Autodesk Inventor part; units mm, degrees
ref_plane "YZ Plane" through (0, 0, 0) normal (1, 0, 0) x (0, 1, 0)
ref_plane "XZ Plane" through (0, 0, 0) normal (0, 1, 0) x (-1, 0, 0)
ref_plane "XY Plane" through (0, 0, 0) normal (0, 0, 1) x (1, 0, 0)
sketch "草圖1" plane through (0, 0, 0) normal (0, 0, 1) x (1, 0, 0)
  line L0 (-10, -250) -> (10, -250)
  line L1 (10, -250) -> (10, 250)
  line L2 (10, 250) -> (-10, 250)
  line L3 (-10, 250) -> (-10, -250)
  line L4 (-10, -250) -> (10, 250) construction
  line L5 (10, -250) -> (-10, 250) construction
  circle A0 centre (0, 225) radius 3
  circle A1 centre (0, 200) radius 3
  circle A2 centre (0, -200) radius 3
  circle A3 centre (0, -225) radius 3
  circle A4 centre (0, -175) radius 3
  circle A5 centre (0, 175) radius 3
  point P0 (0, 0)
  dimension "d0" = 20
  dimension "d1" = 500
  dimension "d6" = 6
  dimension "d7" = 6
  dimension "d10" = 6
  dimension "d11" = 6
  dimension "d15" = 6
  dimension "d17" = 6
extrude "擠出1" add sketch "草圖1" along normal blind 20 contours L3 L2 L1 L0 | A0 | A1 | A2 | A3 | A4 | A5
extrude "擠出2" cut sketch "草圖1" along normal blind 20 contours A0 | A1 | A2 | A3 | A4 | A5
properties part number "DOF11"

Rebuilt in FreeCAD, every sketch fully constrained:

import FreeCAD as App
import Part
import Sketcher
from FreeCAD import Vector

doc = App.newDocument("Part")
body = doc.addObject("PartDesign::Body", "Body")

# Sketch on XY plane
sketch1 = body.newObject("Sketcher::SketchObject", "Sketch")
sketch1.AttachmentSupport = (doc.getObject("XY_Plane"), [""])
sketch1.MapMode = "FlatFace"
sketch1.addGeometry([
    Part.LineSegment(Vector(-10, 250, 0), Vector(-10, -250, 0)),
    Part.LineSegment(Vector(-10, -250, 0), Vector(10, -250, 0)),
    Part.LineSegment(Vector(10, -250, 0), Vector(10, 250, 0)),
    Part.LineSegment(Vector(10, 250, 0), Vector(-10, 250, 0)),
], False)
sketch1.addConstraint([
    Sketcher.Constraint("Coincident", 0, 2, 1, 1),
    Sketcher.Constraint("Coincident", 1, 2, 2, 1),
    Sketcher.Constraint("Coincident", 2, 2, 3, 1),
    Sketcher.Constraint("Coincident", 3, 2, 0, 1),
    Sketcher.Constraint("Vertical", 0),
    Sketcher.Constraint("Horizontal", 1),
    Sketcher.Constraint("Vertical", 2),
    Sketcher.Constraint("Horizontal", 3),
    Sketcher.Constraint("Symmetric", 0, 2, 2, 2, -1, 1),
    Sketcher.Constraint("DistanceX", 1, 1, 1, 2, 20.0),
    Sketcher.Constraint("DistanceY", 0, 2, 0, 1, 500.0),
])
pad1 = body.newObject("PartDesign::Pad", "Pad")
pad1.Profile = sketch1
pad1.Length = 20

# Sketch on XY plane
sketch2 = body.newObject("Sketcher::SketchObject", "Sketch001")
sketch2.AttachmentSupport = (doc.getObject("XY_Plane"), [""])
sketch2.MapMode = "FlatFace"
sketch2.addGeometry([
    Part.Circle(Vector(0, 225, 0), Vector(0, 0, 1), 3),  # 0
    Part.Circle(Vector(0, 200, 0), Vector(0, 0, 1), 3),  # 1
    Part.Circle(Vector(0, -200, 0), Vector(0, 0, 1), 3),  # 2
    Part.Circle(Vector(0, -225, 0), Vector(0, 0, 1), 3),  # 3
    Part.Circle(Vector(0, -175, 0), Vector(0, 0, 1), 3),  # 4
    Part.Circle(Vector(0, 175, 0), Vector(0, 0, 1), 3),  # 5
], False)
sketch2.addConstraint([
    Sketcher.Constraint("Equal", 0, 1),
    Sketcher.Constraint("Equal", 1, 2),
    Sketcher.Constraint("Equal", 2, 3),
    Sketcher.Constraint("Equal", 3, 4),
    Sketcher.Constraint("Equal", 4, 5),
    Sketcher.Constraint("Symmetric", 1, 3, 2, 3, -1, 1),
    Sketcher.Constraint("Symmetric", 0, 3, 3, 3, -1, 1),
    Sketcher.Constraint("Symmetric", 4, 3, 5, 3, -1, 1),
    Sketcher.Constraint("PointOnObject", 0, 3, -2),
    Sketcher.Constraint("PointOnObject", 1, 3, -2),
    Sketcher.Constraint("PointOnObject", 4, 3, -2),
    Sketcher.Constraint("Diameter", 0, 6.0),
    Sketcher.Constraint("DistanceY", -1, 1, 0, 3, 225.0),
    Sketcher.Constraint("DistanceY", -1, 1, 1, 3, 200.0),
    Sketcher.Constraint("DistanceY", 4, 3, -1, 1, 175.0),
])
pocket1 = body.newObject("PartDesign::Pocket", "Pocket")
pocket1.Profile = sketch2
pocket1.Length = 20
pocket1.Reversed = True

doc.recompute()
